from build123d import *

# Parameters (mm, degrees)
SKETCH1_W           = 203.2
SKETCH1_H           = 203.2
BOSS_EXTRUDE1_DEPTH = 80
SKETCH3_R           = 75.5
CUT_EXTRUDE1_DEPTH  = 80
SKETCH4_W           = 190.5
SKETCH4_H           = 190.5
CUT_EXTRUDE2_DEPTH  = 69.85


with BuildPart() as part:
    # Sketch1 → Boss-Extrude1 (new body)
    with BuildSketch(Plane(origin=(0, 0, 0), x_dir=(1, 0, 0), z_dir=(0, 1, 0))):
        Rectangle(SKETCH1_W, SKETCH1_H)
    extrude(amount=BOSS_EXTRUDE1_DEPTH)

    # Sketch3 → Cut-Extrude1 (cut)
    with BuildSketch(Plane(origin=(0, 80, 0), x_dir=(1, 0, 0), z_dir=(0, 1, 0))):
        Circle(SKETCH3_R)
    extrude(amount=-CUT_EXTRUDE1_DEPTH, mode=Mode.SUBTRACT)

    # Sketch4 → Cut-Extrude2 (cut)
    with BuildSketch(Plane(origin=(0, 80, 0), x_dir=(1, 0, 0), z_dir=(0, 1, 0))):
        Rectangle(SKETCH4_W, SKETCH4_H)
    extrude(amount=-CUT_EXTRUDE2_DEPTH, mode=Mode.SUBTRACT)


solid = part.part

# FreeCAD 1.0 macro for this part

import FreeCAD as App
import Part
import Sketcher
Q = App.Units.Quantity

doc = App.newDocument("Part")
body = doc.addObject("PartDesign::Body", "Body")

# Sketch on XZ plane
sketch1 = doc.addObject("Sketcher::SketchObject", "Sketch")
body.addObject(sketch1)
sketch1.AttachmentSupport = (doc.XZ_Plane, [""])
sketch1.MapMode = "FlatFace"
sketch1.addGeometry([
    Part.LineSegment(App.Vector(-101.6, -101.6, 0), App.Vector(-101.6, 101.6, 0)),
    Part.LineSegment(App.Vector(-101.6, 101.6, 0), App.Vector(101.6, 101.6, 0)),
    Part.LineSegment(App.Vector(101.6, 101.6, 0), App.Vector(101.6, -101.6, 0)),
    Part.LineSegment(App.Vector(101.6, -101.6, 0), App.Vector(-101.6, -101.6, 0)),
], False)
sketch1.addConstraint([
    Sketcher.Constraint("Coincident", 0, 2, 1, 1),
    Sketcher.Constraint("Coincident", 1, 2, 2, 1),
    Sketcher.Constraint("Coincident", 2, 2, 3, 1),
    Sketcher.Constraint("Coincident", 3, 2, 0, 1),
    Sketcher.Constraint("Vertical", 0),
    Sketcher.Constraint("Horizontal", 1),
    Sketcher.Constraint("Vertical", 2),
    Sketcher.Constraint("Horizontal", 3),
    Sketcher.Constraint("Symmetric", 0, 2, 2, 2, -1, 1),
    Sketcher.Constraint("Equal", 3, 0),
    Sketcher.Constraint("DistanceX", 1, 1, 1, 2, Q("8 in")),
])
pad1 = doc.addObject("PartDesign::Pad", "Pad")
body.addObject(pad1)
pad1.Profile = sketch1
pad1.Length = 80
pad1.Reversed = True

# Sketch on XZ plane
sketch2 = doc.addObject("Sketcher::SketchObject", "Sketch001")
body.addObject(sketch2)
sketch2.AttachmentSupport = (doc.XZ_Plane, [""])
sketch2.MapMode = "FlatFace"
sketch2.AttachmentOffset = App.Placement(App.Vector(0, 0, -80), App.Rotation())
sketch2.addGeometry(Part.Circle(App.Vector(0, 0, 0), App.Vector(0, 0, 1), 75.5), False)
sketch2.addConstraint([
    Sketcher.Constraint("Coincident", 0, 3, -1, 1),
    Sketcher.Constraint("Diameter", 0, 151.0),
])
pocket1 = doc.addObject("PartDesign::Pocket", "Pocket")
body.addObject(pocket1)
pocket1.Profile = sketch2
pocket1.Length = 80
pocket1.Reversed = True

# Sketch on XZ plane
sketch3 = doc.addObject("Sketcher::SketchObject", "Sketch002")
body.addObject(sketch3)
sketch3.AttachmentSupport = (doc.XZ_Plane, [""])
sketch3.MapMode = "FlatFace"
sketch3.AttachmentOffset = App.Placement(App.Vector(0, 0, -80), App.Rotation())
sketch3.addGeometry([
    Part.LineSegment(App.Vector(-95.25, -95.25, 0), App.Vector(-95.25, 95.25, 0)),
    Part.LineSegment(App.Vector(-95.25, 95.25, 0), App.Vector(95.25, 95.25, 0)),
    Part.LineSegment(App.Vector(95.25, 95.25, 0), App.Vector(95.25, -95.25, 0)),
    Part.LineSegment(App.Vector(95.25, -95.25, 0), App.Vector(-95.25, -95.25, 0)),
], False)
sketch3.addConstraint([
    Sketcher.Constraint("Coincident", 0, 2, 1, 1),
    Sketcher.Constraint("Coincident", 1, 2, 2, 1),
    Sketcher.Constraint("Coincident", 2, 2, 3, 1),
    Sketcher.Constraint("Coincident", 3, 2, 0, 1),
    Sketcher.Constraint("Vertical", 0),
    Sketcher.Constraint("Horizontal", 1),
    Sketcher.Constraint("Vertical", 2),
    Sketcher.Constraint("Horizontal", 3),
    Sketcher.Constraint("Symmetric", 0, 2, 2, 2, -1, 1),
    Sketcher.Constraint("Equal", 3, 0),
    Sketcher.Constraint("DistanceX", 1, 1, 1, 2, Q("7.5 in")),
])
pocket2 = doc.addObject("PartDesign::Pocket", "Pocket001")
body.addObject(pocket2)
pocket2.Profile = sketch3
pocket2.Length = Q("2.75 in")
pocket2.Reversed = True

doc.recompute()
